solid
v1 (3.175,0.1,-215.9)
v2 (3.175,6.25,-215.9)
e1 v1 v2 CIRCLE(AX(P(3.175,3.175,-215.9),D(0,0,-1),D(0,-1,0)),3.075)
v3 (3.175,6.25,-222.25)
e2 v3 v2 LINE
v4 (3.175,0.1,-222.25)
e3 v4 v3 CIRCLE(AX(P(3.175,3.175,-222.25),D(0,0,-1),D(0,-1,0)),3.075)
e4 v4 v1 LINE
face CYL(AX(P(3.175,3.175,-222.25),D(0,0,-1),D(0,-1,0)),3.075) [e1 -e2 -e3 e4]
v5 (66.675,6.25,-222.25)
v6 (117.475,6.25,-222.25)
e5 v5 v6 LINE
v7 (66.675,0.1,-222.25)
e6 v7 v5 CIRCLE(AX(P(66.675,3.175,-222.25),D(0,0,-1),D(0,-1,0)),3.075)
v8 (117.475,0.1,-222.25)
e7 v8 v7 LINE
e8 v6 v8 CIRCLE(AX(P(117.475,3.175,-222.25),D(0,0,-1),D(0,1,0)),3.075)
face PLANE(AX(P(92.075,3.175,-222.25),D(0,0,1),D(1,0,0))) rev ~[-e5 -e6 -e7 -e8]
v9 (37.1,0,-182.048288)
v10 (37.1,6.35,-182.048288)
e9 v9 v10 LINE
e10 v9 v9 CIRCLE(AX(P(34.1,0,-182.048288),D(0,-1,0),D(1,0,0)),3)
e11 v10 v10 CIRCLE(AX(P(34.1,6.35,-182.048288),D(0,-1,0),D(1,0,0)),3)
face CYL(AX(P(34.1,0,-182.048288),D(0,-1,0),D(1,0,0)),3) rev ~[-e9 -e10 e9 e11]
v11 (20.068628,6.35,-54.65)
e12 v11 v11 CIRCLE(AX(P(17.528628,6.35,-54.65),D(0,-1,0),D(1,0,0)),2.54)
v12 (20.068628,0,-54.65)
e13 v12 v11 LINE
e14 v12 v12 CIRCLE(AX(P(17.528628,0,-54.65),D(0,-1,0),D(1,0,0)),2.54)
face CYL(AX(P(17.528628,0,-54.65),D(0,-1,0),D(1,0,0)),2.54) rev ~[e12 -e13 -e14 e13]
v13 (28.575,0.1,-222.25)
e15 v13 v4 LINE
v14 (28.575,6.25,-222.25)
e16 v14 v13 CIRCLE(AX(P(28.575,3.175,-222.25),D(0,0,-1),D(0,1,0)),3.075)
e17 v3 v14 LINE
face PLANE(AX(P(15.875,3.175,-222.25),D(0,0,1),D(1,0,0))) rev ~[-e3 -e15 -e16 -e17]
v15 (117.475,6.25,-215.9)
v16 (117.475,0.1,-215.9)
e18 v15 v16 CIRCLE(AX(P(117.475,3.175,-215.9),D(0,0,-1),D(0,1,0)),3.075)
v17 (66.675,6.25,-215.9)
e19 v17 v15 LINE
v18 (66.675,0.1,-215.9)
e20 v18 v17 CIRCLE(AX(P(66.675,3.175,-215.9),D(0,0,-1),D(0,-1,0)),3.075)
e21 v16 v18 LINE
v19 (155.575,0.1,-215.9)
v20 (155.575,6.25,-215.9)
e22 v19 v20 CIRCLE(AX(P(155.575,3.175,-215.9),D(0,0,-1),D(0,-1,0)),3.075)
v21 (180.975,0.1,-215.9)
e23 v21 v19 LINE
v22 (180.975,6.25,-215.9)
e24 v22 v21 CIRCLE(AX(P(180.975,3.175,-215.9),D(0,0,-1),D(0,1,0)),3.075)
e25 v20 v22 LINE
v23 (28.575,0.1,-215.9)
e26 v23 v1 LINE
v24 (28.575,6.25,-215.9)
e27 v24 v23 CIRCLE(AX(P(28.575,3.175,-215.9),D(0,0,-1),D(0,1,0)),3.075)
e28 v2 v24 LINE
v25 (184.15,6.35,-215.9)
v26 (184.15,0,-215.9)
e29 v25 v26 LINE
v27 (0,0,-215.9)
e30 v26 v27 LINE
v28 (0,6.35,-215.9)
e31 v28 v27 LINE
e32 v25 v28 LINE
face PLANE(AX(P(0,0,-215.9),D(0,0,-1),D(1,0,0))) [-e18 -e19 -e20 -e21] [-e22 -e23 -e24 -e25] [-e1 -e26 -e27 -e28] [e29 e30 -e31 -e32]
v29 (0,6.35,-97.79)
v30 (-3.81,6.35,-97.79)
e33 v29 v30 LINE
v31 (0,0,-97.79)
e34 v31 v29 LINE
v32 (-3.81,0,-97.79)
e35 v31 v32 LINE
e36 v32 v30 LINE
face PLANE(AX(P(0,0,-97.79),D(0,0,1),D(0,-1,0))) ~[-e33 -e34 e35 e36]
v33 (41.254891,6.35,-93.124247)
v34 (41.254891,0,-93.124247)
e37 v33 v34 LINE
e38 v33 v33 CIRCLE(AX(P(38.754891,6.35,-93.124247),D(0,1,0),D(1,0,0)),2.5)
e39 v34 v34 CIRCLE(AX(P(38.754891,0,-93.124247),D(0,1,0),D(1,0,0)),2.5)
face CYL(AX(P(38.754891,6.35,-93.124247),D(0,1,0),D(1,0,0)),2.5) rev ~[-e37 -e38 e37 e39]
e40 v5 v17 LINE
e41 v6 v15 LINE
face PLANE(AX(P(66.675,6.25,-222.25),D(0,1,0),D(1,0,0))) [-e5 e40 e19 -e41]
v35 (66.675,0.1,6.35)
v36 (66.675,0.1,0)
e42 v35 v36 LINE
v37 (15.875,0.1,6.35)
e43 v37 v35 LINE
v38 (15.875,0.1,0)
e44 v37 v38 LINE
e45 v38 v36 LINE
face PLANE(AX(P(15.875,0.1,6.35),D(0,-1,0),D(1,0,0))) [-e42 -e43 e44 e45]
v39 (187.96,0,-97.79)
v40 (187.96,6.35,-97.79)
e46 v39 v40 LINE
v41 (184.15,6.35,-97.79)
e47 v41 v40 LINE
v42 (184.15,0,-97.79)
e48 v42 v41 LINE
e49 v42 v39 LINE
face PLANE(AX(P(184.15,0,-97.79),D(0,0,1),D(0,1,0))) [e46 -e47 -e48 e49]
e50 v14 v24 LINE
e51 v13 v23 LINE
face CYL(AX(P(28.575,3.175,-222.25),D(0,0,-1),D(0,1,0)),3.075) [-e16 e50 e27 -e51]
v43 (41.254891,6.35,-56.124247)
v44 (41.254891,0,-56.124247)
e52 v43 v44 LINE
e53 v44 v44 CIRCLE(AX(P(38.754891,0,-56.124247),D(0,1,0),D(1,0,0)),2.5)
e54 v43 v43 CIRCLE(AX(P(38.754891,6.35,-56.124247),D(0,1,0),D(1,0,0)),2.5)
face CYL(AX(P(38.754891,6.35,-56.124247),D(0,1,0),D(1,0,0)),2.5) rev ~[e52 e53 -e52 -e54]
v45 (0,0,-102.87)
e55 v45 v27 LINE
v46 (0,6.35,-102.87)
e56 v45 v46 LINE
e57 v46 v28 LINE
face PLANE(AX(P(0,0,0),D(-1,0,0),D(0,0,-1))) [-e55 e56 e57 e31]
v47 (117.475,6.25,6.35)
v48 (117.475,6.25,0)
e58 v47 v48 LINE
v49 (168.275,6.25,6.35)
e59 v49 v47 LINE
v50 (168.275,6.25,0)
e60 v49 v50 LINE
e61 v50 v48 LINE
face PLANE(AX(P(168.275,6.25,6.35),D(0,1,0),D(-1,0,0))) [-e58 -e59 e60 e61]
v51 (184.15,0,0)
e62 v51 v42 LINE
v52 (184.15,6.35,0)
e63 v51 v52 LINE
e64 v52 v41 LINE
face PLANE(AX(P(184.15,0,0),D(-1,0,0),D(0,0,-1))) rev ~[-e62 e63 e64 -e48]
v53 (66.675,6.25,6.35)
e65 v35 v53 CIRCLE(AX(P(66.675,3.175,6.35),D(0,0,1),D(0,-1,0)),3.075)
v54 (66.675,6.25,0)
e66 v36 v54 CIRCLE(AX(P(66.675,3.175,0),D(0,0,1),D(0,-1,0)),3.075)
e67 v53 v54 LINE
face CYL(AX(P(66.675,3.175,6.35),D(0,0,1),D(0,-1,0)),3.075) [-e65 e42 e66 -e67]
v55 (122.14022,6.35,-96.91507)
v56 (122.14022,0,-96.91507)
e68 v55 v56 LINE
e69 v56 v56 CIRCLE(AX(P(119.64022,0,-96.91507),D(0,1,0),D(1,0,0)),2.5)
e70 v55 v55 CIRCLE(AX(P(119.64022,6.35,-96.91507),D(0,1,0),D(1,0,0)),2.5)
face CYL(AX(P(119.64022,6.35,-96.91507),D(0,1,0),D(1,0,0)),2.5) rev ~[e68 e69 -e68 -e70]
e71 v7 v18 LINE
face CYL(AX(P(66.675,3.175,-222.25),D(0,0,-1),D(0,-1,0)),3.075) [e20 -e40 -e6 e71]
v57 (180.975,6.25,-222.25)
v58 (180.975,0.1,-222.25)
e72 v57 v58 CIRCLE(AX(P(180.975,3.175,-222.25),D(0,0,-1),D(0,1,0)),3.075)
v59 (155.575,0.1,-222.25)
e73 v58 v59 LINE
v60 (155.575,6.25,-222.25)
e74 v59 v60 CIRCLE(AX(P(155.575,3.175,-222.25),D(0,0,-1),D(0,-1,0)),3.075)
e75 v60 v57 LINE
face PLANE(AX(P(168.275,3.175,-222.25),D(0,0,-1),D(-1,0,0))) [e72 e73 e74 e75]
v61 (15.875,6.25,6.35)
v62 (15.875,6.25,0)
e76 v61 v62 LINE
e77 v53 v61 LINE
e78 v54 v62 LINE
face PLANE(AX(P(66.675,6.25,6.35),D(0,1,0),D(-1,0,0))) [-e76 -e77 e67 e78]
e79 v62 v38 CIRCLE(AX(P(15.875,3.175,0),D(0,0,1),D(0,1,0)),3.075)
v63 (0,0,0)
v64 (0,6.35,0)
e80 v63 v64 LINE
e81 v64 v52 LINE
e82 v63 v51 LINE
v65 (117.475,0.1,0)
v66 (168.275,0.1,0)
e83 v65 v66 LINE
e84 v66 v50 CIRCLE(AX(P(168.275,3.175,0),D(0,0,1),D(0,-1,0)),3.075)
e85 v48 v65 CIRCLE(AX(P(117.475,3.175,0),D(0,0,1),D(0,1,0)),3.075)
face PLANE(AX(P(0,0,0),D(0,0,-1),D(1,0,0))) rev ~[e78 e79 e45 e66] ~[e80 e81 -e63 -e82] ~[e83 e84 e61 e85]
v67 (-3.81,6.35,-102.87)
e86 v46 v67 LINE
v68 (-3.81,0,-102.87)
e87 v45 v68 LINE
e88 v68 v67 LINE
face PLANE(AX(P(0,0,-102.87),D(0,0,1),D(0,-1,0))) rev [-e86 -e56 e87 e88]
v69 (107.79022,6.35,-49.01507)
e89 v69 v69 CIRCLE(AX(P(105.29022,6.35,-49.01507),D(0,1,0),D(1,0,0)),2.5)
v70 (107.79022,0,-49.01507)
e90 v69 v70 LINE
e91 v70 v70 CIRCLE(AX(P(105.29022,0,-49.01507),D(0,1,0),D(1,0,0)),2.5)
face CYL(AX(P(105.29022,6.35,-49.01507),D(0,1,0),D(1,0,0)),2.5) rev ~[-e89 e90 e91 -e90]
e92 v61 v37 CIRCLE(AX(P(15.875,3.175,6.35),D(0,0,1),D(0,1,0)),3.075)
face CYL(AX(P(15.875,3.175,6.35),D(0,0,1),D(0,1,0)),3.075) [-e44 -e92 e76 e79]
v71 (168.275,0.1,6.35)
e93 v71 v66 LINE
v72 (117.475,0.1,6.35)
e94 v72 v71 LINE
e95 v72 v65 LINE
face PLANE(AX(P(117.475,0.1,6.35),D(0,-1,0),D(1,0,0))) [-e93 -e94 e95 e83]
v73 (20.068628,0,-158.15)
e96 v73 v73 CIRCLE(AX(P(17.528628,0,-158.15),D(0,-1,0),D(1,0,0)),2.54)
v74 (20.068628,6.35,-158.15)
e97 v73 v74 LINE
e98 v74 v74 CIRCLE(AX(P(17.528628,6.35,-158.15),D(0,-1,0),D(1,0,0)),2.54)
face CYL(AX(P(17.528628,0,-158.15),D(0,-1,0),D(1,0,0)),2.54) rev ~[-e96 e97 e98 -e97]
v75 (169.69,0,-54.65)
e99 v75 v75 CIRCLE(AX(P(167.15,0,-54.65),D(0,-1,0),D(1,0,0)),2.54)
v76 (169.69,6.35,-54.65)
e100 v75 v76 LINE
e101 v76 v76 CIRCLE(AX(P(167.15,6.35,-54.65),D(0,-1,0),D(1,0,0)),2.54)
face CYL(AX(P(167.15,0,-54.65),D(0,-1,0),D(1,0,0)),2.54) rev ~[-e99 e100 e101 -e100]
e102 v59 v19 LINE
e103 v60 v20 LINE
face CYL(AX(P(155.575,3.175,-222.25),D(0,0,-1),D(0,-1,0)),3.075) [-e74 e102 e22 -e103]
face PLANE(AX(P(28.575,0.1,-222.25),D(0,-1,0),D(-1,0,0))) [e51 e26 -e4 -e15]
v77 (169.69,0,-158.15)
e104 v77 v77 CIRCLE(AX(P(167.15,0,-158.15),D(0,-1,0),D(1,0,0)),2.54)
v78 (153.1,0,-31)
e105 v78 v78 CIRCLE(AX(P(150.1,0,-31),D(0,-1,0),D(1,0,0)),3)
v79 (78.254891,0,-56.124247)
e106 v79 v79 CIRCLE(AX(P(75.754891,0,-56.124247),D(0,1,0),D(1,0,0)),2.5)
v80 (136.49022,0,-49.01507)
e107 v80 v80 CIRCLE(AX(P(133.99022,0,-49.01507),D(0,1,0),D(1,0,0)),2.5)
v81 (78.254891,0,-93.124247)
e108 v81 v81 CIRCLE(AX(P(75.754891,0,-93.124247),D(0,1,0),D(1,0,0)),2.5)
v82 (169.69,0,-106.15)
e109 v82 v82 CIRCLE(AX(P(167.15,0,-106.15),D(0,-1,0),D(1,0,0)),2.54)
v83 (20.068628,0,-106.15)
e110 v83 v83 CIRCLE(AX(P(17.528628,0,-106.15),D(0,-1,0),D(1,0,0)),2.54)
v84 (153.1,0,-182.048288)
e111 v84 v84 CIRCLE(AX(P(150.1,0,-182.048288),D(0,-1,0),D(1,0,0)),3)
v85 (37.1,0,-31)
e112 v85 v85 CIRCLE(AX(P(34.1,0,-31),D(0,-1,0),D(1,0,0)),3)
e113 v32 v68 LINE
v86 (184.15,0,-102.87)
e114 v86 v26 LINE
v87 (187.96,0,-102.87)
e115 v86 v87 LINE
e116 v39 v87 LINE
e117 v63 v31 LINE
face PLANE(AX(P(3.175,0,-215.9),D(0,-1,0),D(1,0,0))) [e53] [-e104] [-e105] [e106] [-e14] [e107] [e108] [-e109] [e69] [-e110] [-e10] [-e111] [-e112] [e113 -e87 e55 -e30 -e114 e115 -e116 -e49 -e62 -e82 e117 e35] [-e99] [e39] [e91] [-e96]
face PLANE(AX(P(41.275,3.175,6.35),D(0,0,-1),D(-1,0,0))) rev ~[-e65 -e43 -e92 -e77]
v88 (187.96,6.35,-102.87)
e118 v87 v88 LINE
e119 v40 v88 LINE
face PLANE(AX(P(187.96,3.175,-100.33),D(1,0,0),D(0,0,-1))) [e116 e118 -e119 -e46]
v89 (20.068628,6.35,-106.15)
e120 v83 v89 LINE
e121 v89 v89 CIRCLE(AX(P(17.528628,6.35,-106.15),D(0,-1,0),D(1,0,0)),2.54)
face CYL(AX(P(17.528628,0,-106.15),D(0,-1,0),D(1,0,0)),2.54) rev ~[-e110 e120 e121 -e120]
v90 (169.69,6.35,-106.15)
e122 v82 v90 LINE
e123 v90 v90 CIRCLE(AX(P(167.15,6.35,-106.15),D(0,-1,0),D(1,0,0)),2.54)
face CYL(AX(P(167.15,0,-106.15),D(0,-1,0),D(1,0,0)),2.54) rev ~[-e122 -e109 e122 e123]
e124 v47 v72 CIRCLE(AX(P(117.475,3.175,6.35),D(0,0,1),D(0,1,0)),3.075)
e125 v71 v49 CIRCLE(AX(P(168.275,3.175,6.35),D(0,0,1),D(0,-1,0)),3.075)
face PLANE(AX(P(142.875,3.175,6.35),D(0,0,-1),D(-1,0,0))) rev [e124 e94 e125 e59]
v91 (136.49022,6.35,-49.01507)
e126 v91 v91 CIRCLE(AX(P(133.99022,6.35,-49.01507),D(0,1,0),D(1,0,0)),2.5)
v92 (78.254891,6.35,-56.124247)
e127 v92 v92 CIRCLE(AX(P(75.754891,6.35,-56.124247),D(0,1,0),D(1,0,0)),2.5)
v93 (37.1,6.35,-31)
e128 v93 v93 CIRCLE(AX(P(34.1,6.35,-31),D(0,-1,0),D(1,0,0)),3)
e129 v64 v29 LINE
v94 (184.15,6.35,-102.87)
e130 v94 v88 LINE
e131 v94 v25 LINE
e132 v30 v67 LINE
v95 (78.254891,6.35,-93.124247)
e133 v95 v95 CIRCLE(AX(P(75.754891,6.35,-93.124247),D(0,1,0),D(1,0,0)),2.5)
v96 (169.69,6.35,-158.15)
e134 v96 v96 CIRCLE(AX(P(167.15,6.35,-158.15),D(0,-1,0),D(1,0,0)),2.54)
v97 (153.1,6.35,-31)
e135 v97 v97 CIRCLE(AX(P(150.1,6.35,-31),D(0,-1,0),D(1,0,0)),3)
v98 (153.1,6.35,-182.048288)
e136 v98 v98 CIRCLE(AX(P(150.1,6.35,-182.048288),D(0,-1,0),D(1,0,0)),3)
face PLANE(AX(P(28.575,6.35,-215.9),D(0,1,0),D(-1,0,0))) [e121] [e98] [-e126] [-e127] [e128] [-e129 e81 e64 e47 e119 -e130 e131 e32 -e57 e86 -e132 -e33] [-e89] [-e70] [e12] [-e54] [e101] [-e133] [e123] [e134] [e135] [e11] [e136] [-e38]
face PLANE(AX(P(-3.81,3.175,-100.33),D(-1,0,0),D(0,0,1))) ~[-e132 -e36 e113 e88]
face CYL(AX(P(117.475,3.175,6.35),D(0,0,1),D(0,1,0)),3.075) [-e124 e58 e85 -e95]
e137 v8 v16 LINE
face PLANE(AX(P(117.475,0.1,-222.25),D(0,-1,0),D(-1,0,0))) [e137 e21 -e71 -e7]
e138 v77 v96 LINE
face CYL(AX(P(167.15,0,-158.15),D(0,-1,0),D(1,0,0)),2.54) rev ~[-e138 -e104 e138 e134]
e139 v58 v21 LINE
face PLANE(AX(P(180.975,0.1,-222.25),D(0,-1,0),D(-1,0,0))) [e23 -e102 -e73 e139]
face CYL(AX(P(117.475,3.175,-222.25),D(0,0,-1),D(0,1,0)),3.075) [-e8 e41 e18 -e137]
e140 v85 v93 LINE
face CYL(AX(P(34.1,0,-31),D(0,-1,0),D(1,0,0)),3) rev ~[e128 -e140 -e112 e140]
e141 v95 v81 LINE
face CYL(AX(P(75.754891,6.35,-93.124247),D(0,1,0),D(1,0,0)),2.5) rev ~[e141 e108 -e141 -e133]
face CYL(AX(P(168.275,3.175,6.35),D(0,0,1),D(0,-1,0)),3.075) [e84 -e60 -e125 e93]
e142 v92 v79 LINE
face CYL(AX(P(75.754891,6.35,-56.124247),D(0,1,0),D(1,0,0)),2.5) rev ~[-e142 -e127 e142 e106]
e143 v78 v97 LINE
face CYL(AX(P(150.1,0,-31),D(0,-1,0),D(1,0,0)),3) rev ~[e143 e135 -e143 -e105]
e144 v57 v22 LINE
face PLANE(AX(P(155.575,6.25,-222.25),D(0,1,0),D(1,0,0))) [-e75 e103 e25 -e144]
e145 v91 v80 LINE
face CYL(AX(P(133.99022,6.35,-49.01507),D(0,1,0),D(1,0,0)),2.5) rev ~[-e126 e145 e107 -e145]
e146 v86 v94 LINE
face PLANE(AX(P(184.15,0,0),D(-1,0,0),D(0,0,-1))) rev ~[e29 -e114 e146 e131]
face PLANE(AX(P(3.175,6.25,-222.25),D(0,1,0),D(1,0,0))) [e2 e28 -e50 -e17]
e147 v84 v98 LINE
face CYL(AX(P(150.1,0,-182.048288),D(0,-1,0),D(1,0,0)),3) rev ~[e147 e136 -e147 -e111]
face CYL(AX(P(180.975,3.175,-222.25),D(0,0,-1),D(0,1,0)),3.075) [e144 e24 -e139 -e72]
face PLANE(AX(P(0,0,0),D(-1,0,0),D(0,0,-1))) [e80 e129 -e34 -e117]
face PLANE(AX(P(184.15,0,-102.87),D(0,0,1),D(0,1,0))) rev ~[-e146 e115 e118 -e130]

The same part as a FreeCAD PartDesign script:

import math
import FreeCAD as App
import Part
import Sketcher
Q = App.Units.Quantity

doc = App.newDocument("Part")
body = doc.addObject("PartDesign::Body", "Body")

# Sketch on XZ plane
sketch1 = body.newObject("Sketcher::SketchObject", "Sketch")
sketch1.AttachmentSupport = (doc.getObject("XZ_Plane"), [""])
sketch1.MapMode = "FlatFace"
sketch1.addGeometry(Part.LineSegment(App.Vector(0, -216, 0), App.Vector(0, 0, 0)), False)
sketch1.addGeometry(Part.LineSegment(App.Vector(0, 0, 0), App.Vector(184, 0, 0)), False)
sketch1.addGeometry(Part.LineSegment(App.Vector(184, 0, 0), App.Vector(184, -216, 0)), False)
sketch1.addGeometry(Part.LineSegment(App.Vector(184, -216, 0), App.Vector(0, -216, 0)), False)
sketch1.addConstraint(Sketcher.Constraint("Coincident", 0, 2, 1, 1))
sketch1.addConstraint(Sketcher.Constraint("Coincident", 1, 2, 2, 1))
sketch1.addConstraint(Sketcher.Constraint("Coincident", 2, 2, 3, 1))
sketch1.addConstraint(Sketcher.Constraint("Coincident", 3, 2, 0, 1))
sketch1.addConstraint(Sketcher.Constraint("Vertical", 0))
sketch1.addConstraint(Sketcher.Constraint("Horizontal", 1))
sketch1.addConstraint(Sketcher.Constraint("Vertical", 2))
sketch1.addConstraint(Sketcher.Constraint("Horizontal", 3))
sketch1.addConstraint(Sketcher.Constraint("Coincident", 0, 2, -1, 1))
sketch1.addConstraint(Sketcher.Constraint("DistanceY", 0, 1, 0, 2, Q("8.5 in")))
sketch1.addConstraint(Sketcher.Constraint("DistanceX", 1, 1, 1, 2, Q("7.25 in")))
pad1 = body.newObject("PartDesign::Pad", "Pad")
pad1.Profile = sketch1
pad1.Length = Q("0.25 in")
pad1.Reversed = True

# Sketch on XY plane
sketch2 = body.newObject("Sketcher::SketchObject", "Sketch001")
sketch2.AttachmentSupport = (doc.getObject("XY_Plane"), [""])
sketch2.MapMode = "FlatFace"
sketch2.addGeometry(Part.LineSegment(App.Vector(66.7, 6.3, 0), App.Vector(15.9, 6.3, 0)), False)
sketch2.addGeometry(Part.ArcOfCircle(Part.Circle(App.Vector(15.9, 3.2, 0), App.Vector(0, 0, 1), 3.2), math.radians(90), math.radians(270)), False)
sketch2.addGeometry(Part.LineSegment(App.Vector(15.9, 0, 0), App.Vector(66.7, 0, 0)), False)
sketch2.addGeometry(Part.ArcOfCircle(Part.Circle(App.Vector(66.7, 3.2, 0), App.Vector(0, 0, 1), 3.2), math.radians(-90), math.radians(90)), False)
sketch2.addConstraint(Sketcher.Constraint("Tangent", 0, 2, 1, 1))
sketch2.addConstraint(Sketcher.Constraint("Tangent", 1, 2, 2, 1))
sketch2.addConstraint(Sketcher.Constraint("Tangent", 2, 2, 3, 1))
sketch2.addConstraint(Sketcher.Constraint("Tangent", 3, 2, 0, 1))
sketch2.addConstraint(Sketcher.Constraint("Horizontal", 0))
sketch2.addConstraint(Sketcher.Constraint("Horizontal", 2))
sketch2.addConstraint(Sketcher.Constraint("PointOnObject", 1, 2, -1))
sketch2.addConstraint(Sketcher.Constraint("DistanceX", 0, 2, 0, 1, Q("2 in")))
sketch2.addConstraint(Sketcher.Constraint("Radius", 1, Q("0.125 in")))
sketch2.addConstraint(Sketcher.Constraint("DistanceX", -1, 1, 1, 3, Q("0.625 in")))
pad2 = body.newObject("PartDesign::Pad", "Pad001")
pad2.Profile = sketch2
pad2.Length = Q("0.25 in")
doc.recompute()

datumplane = body.newObject("PartDesign::Plane", "DatumPlane")
datumplane.AttachmentSupport = (doc.getObject("YZ_Plane"), [""])
datumplane.MapMode = "FlatFace"
datumplane.AttachmentOffset = App.Placement(App.Vector(0, 0, 3.625 * 25.4), App.Rotation())
mirrored = body.newObject("PartDesign::Mirrored", "Mirrored")
mirrored.Originals = [pad2]
mirrored.MirrorPlane = (datumplane, [""])
body.Tip = mirrored

# Sketch on XY plane
sketch3 = body.newObject("Sketcher::SketchObject", "Sketch002")
sketch3.AttachmentSupport = (doc.getObject("XY_Plane"), [""])
sketch3.MapMode = "FlatFace"
sketch3.AttachmentOffset = App.Placement(App.Vector(0, 0, -8.5 * 25.4), App.Rotation())
sketch3.addGeometry(Part.LineSegment(App.Vector(66.7, 6.3, 0), App.Vector(117.5, 6.3, 0)), False)
sketch3.addGeometry(Part.ArcOfCircle(Part.Circle(App.Vector(117.5, 3.2, 0), App.Vector(0, 0, 1), 3.2), math.radians(-90), math.radians(90)), False)
sketch3.addGeometry(Part.LineSegment(App.Vector(117.5, 0, 0), App.Vector(66.7, 0, 0)), False)
sketch3.addGeometry(Part.ArcOfCircle(Part.Circle(App.Vector(66.7, 3.2, 0), App.Vector(0, 0, 1), 3.2), math.radians(90), math.radians(270)), False)
sketch3.addGeometry(Part.LineSegment(App.Vector(3.2, 6.3, 0), App.Vector(28.6, 6.3, 0)), False)
sketch3.addGeometry(Part.ArcOfCircle(Part.Circle(App.Vector(28.6, 3.2, 0), App.Vector(0, 0, 1), 3.2), math.radians(-90), math.radians(90)), False)
sketch3.addGeometry(Part.LineSegment(App.Vector(28.6, 0, 0), App.Vector(3.2, 0, 0)), False)
sketch3.addGeometry(Part.ArcOfCircle(Part.Circle(App.Vector(3.2, 3.2, 0), App.Vector(0, 0, 1), 3.2), math.radians(90), math.radians(270)), False)
sketch3.addGeometry(Part.LineSegment(App.Vector(155.6, 6.3, 0), App.Vector(181, 6.3, 0)), False)
sketch3.addGeometry(Part.ArcOfCircle(Part.Circle(App.Vector(181, 3.2, 0), App.Vector(0, 0, 1), 3.2), math.radians(-90), math.radians(90)), False)
sketch3.addGeometry(Part.LineSegment(App.Vector(181, 0, 0), App.Vector(155.6, 0, 0)), False)
sketch3.addGeometry(Part.ArcOfCircle(Part.Circle(App.Vector(155.6, 3.2, 0), App.Vector(0, 0, 1), 3.2), math.radians(90), math.radians(270)), False)
sketch3.addConstraint(Sketcher.Constraint("Tangent", 0, 2, 1, 2))
sketch3.addConstraint(Sketcher.Constraint("Tangent", 1, 1, 2, 1))
sketch3.addConstraint(Sketcher.Constraint("Tangent", 2, 2, 3, 2))
sketch3.addConstraint(Sketcher.Constraint("Tangent", 3, 1, 0, 1))
sketch3.addConstraint(Sketcher.Constraint("Tangent", 4, 2, 5, 2))
sketch3.addConstraint(Sketcher.Constraint("Tangent", 5, 1, 6, 1))
sketch3.addConstraint(Sketcher.Constraint("Tangent", 6, 2, 7, 2))
sketch3.addConstraint(Sketcher.Constraint("Tangent", 7, 1, 4, 1))
sketch3.addConstraint(Sketcher.Constraint("Tangent", 8, 2, 9, 2))
sketch3.addConstraint(Sketcher.Constraint("Tangent", 9, 1, 10, 1))
sketch3.addConstraint(Sketcher.Constraint("Tangent", 10, 2, 11, 2))
sketch3.addConstraint(Sketcher.Constraint("Tangent", 11, 1, 8, 1))
sketch3.addConstraint(Sketcher.Constraint("Horizontal", 0))
sketch3.addConstraint(Sketcher.Constraint("Horizontal", 2))
sketch3.addConstraint(Sketcher.Constraint("Horizontal", 4))
sketch3.addConstraint(Sketcher.Constraint("Horizontal", 6))
sketch3.addConstraint(Sketcher.Constraint("Horizontal", 8))
sketch3.addConstraint(Sketcher.Constraint("Horizontal", 10))
sketch3.addConstraint(Sketcher.Constraint("Equal", 3, 5))
sketch3.addConstraint(Sketcher.Constraint("Equal", 7, 9))
sketch3.addConstraint(Sketcher.Constraint("PointOnObject", 1, 1, -1))
sketch3.addConstraint(Sketcher.Constraint("PointOnObject", 5, 1, -1))
sketch3.addConstraint(Sketcher.Constraint("PointOnObject", 9, 1, -1))
sketch3.addConstraint(Sketcher.Constraint("Equal", 6, 8))
sketch3.addConstraint(Sketcher.Constraint("DistanceX", 0, 1, 0, 2, Q("2 in")))
sketch3.addConstraint(Sketcher.Constraint("DistanceX", 4, 1, 4, 2, Q("1 in")))
sketch3.addConstraint(Sketcher.Constraint("Radius", 1, Q("0.125 in")))
sketch3.addConstraint(Sketcher.Constraint("DistanceX", 5, 3, 9, 3, Q("6 in")))
sketch3.addConstraint(Sketcher.Constraint("DistanceX", 5, 3, 3, 3, Q("1.5 in")))
sketch3.addConstraint(Sketcher.Constraint("DistanceX", -1, 1, 1, 3, Q("4.625 in")))
pad3 = body.newObject("PartDesign::Pad", "Pad002")
pad3.Profile = sketch3
pad3.Length = Q("0.25 in")
pad3.Reversed = True

# Sketch on YZ plane
sketch4 = body.newObject("Sketcher::SketchObject", "Sketch003")
sketch4.AttachmentSupport = (doc.getObject("YZ_Plane"), [""])
sketch4.MapMode = "FlatFace"
sketch4.AttachmentOffset = App.Placement(App.Vector(0, 0, 7.25 * 25.4), App.Rotation())
sketch4.addGeometry(Part.LineSegment(App.Vector(6, -98, 0), App.Vector(0, -98, 0)), False)
sketch4.addGeometry(Part.LineSegment(App.Vector(0, -98, 0), App.Vector(0, -103, 0)), False)
sketch4.addGeometry(Part.LineSegment(App.Vector(0, -103, 0), App.Vector(6, -103, 0)), False)
sketch4.addGeometry(Part.LineSegment(App.Vector(6, -103, 0), App.Vector(6, -98, 0)), False)
sketch4.addConstraint(Sketcher.Constraint("Coincident", 0, 2, 1, 1))
sketch4.addConstraint(Sketcher.Constraint("Coincident", 1, 2, 2, 1))
sketch4.addConstraint(Sketcher.Constraint("Coincident", 2, 2, 3, 1))
sketch4.addConstraint(Sketcher.Constraint("Coincident", 3, 2, 0, 1))
sketch4.addConstraint(Sketcher.Constraint("Horizontal", 0))
sketch4.addConstraint(Sketcher.Constraint("Vertical", 1))
sketch4.addConstraint(Sketcher.Constraint("Horizontal", 2))
sketch4.addConstraint(Sketcher.Constraint("Vertical", 3))
sketch4.addConstraint(Sketcher.Constraint("PointOnObject", 0, 2, -2))
sketch4.addConstraint(Sketcher.Constraint("DistanceY", 1, 2, 1, 1, Q("0.2 in")))
sketch4.addConstraint(Sketcher.Constraint("DistanceX", 0, 2, 0, 1, Q("0.25 in")))
sketch4.addConstraint(Sketcher.Constraint("DistanceY", 0, 2, -1, 1, Q("3.85 in")))
pad4 = body.newObject("PartDesign::Pad", "Pad003")
pad4.Profile = sketch4
pad4.Length = Q("0.15 in")
doc.recompute()

datumplane2 = body.newObject("PartDesign::Plane", "DatumPlane001")
datumplane2.AttachmentSupport = (doc.getObject("YZ_Plane"), [""])
datumplane2.MapMode = "FlatFace"
datumplane2.AttachmentOffset = App.Placement(App.Vector(0, 0, 3.625 * 25.4), App.Rotation())
mirrored2 = body.newObject("PartDesign::Mirrored", "Mirrored001")
mirrored2.Originals = [pad4]
mirrored2.MirrorPlane = (datumplane2, [""])
body.Tip = mirrored2

# Sketch on XZ plane
sketch5 = body.newObject("Sketcher::SketchObject", "Sketch004")
sketch5.AttachmentSupport = (doc.getObject("XZ_Plane"), [""])
sketch5.MapMode = "FlatFace"
sketch5.addGeometry(Part.Circle(App.Vector(17.5, -54.6, 0), App.Vector(0, 0, 1), 2.5), False)
sketch5.addGeometry(Part.Circle(App.Vector(167.2, -54.6, 0), App.Vector(0, 0, 1), 2.5), False)
sketch5.addGeometry(Part.Circle(App.Vector(167.2, -106.2, 0), App.Vector(0, 0, 1), 2.5), False)
sketch5.addGeometry(Part.Circle(App.Vector(17.5, -106.2, 0), App.Vector(0, 0, 1), 2.5), False)
sketch5.addGeometry(Part.Circle(App.Vector(17.5, -158.2, 0), App.Vector(0, 0, 1), 2.5), False)
sketch5.addGeometry(Part.Circle(App.Vector(167.2, -158.2, 0), App.Vector(0, 0, 1), 2.5), False)
sketch5.addConstraint(Sketcher.Constraint("Equal", 0, 1))
sketch5.addConstraint(Sketcher.Constraint("Equal", 1, 2))
sketch5.addConstraint(Sketcher.Constraint("Equal", 2, 3))
sketch5.addConstraint(Sketcher.Constraint("Equal", 3, 4))
sketch5.addConstraint(Sketcher.Constraint("Equal", 4, 5))
sketch5.addConstraint(Sketcher.Constraint("Horizontal", 0, 3, 1, 3))
sketch5.addConstraint(Sketcher.Constraint("Horizontal", 2, 3, 3, 3))
sketch5.addConstraint(Sketcher.Constraint("Horizontal", 4, 3, 5, 3))
sketch5.addConstraint(Sketcher.Constraint("Vertical", 1, 3, 2, 3))
sketch5.addConstraint(Sketcher.Constraint("Vertical", 0, 3, 3, 3))
sketch5.addConstraint(Sketcher.Constraint("Vertical", 3, 3, 4, 3))
sketch5.addConstraint(Sketcher.Constraint("Vertical", 2, 3, 5, 3))
sketch5.addConstraint(Sketcher.Constraint("Diameter", 0, Q("0.2 in")))
sketch5.addConstraint(Sketcher.Constraint("DistanceY", 0, 3, -1, 1, Q("54.65 mm")))
sketch5.addConstraint(Sketcher.Constraint("DistanceX", -1, 1, 1, 3, Q("167.15 mm")))
sketch5.addConstraint(Sketcher.Constraint("DistanceY", 2, 3, -1, 1, Q("106.15 mm")))
sketch5.addConstraint(Sketcher.Constraint("DistanceY", 4, 3, -1, 1, Q("158.15 mm")))
sketch5.addConstraint(Sketcher.Constraint("DistanceX", -1, 1, 0, 3, Q("17.528628 mm")))
pocket1 = body.newObject("PartDesign::Pocket", "Pocket")
pocket1.Profile = sketch5
pocket1.Type = "ThroughAll"

# Sketch on XZ plane
sketch6 = body.newObject("Sketcher::SketchObject", "Sketch005")
sketch6.AttachmentSupport = (doc.getObject("XZ_Plane"), [""])
sketch6.MapMode = "FlatFace"
sketch6.AttachmentOffset = App.Placement(App.Vector(0, 0, -0.25 * 25.4), App.Rotation())
sketch6.addGeometry(Part.Circle(App.Vector(105.3, -49, 0), App.Vector(0, 0, 1), 2.5), False)
sketch6.addGeometry(Part.Circle(App.Vector(134, -49, 0), App.Vector(0, 0, 1), 2.5), False)
sketch6.addGeometry(Part.Circle(App.Vector(119.6, -96.9, 0), App.Vector(0, 0, 1), 2.5), False)
sketch6.addConstraint(Sketcher.Constraint("Equal", 0, 1))
sketch6.addConstraint(Sketcher.Constraint("Equal", 1, 2))
sketch6.addConstraint(Sketcher.Constraint("Horizontal", 0, 3, 1, 3))
sketch6.addConstraint(Sketcher.Constraint("Diameter", 0, Q("5 mm")))
sketch6.addConstraint(Sketcher.Constraint("DistanceX", 0, 3, 1, 3, Q("28.7 mm")))
sketch6.addConstraint(Sketcher.Constraint("DistanceX", 0, 3, 2, 3, Q("14.35 mm")))
sketch6.addConstraint(Sketcher.Constraint("DistanceY", 2, 3, 0, 3, Q("47.9 mm")))
sketch6.addConstraint(Sketcher.Constraint("DistanceX", -1, 1, 0, 3, Q("105.29022 mm")))
sketch6.addConstraint(Sketcher.Constraint("DistanceY", 0, 3, -1, 1, Q("49.01507 mm")))
pocket2 = body.newObject("PartDesign::Pocket", "Pocket001")
pocket2.Profile = sketch6
pocket2.Length = 10
pocket2.Reversed = True

# Sketch on XZ plane
sketch7 = body.newObject("Sketcher::SketchObject", "Sketch006")
sketch7.AttachmentSupport = (doc.getObject("XZ_Plane"), [""])
sketch7.MapMode = "FlatFace"
sketch7.AttachmentOffset = App.Placement(App.Vector(0, 0, -0.25 * 25.4), App.Rotation())
sketch7.addGeometry(Part.Circle(App.Vector(75.8, -56.1, 0), App.Vector(0, 0, 1), 2.5), False)
sketch7.addGeometry(Part.Circle(App.Vector(38.8, -56.1, 0), App.Vector(0, 0, 1), 2.5), False)
sketch7.addGeometry(Part.Circle(App.Vector(75.8, -93.1, 0), App.Vector(0, 0, 1), 2.5), False)
sketch7.addGeometry(Part.Circle(App.Vector(38.8, -93.1, 0), App.Vector(0, 0, 1), 2.5), False)
sketch7.addConstraint(Sketcher.Constraint("Equal", 0, 1))
sketch7.addConstraint(Sketcher.Constraint("Equal", 1, 2))
sketch7.addConstraint(Sketcher.Constraint("Equal", 2, 3))
sketch7.addConstraint(Sketcher.Constraint("Horizontal", 0, 3, 1, 3))
sketch7.addConstraint(Sketcher.Constraint("Horizontal", 2, 3, 3, 3))
sketch7.addConstraint(Sketcher.Constraint("Vertical", 0, 3, 2, 3))
sketch7.addConstraint(Sketcher.Constraint("Vertical", 1, 3, 3, 3))
sketch7.addConstraint(Sketcher.Constraint("Diameter", 0, Q("5 mm")))
sketch7.addConstraint(Sketcher.Constraint("DistanceX", 1, 3, 0, 3, Q("37 mm")))
sketch7.addConstraint(Sketcher.Constraint("DistanceY", 2, 3, 0, 3, Q("37 mm")))
sketch7.addConstraint(Sketcher.Constraint("DistanceX", -1, 1, 0, 3, Q("75.754891 mm")))
sketch7.addConstraint(Sketcher.Constraint("DistanceY", 0, 3, -1, 1, Q("56.124247 mm")))
pocket3 = body.newObject("PartDesign::Pocket", "Pocket002")
pocket3.Profile = sketch7
pocket3.Length = 10
pocket3.Reversed = True

# Sketch on XZ plane
sketch8 = body.newObject("Sketcher::SketchObject", "Sketch007")
sketch8.AttachmentSupport = (doc.getObject("XZ_Plane"), [""])
sketch8.MapMode = "FlatFace"
sketch8.addGeometry(Part.Circle(App.Vector(150.1, -182, 0), App.Vector(0, 0, 1), 3), False)
sketch8.addGeometry(Part.Circle(App.Vector(34.1, -182, 0), App.Vector(0, 0, 1), 3), False)
sketch8.addGeometry(Part.Circle(App.Vector(150.1, -31, 0), App.Vector(0, 0, 1), 3), False)
sketch8.addGeometry(Part.Circle(App.Vector(34.1, -31, 0), App.Vector(0, 0, 1), 3), False)
sketch8.addConstraint(Sketcher.Constraint("Equal", 0, 1))
sketch8.addConstraint(Sketcher.Constraint("Equal", 1, 2))
sketch8.addConstraint(Sketcher.Constraint("Equal", 2, 3))
sketch8.addConstraint(Sketcher.Constraint("Horizontal", 0, 3, 1, 3))
sketch8.addConstraint(Sketcher.Constraint("Horizontal", 2, 3, 3, 3))
sketch8.addConstraint(Sketcher.Constraint("Vertical", 0, 3, 2, 3))
sketch8.addConstraint(Sketcher.Constraint("Vertical", 1, 3, 3, 3))
sketch8.addConstraint(Sketcher.Constraint("Diameter", 0, Q("6 mm")))
sketch8.addConstraint(Sketcher.Constraint("DistanceX", -1, 1, 0, 3, Q("150.1 mm")))
sketch8.addConstraint(Sketcher.Constraint("DistanceX", -1, 1, 1, 3, Q("34.1 mm")))
sketch8.addConstraint(Sketcher.Constraint("DistanceY", 2, 3, -1, 1, Q("31 mm")))
sketch8.addConstraint(Sketcher.Constraint("DistanceY", 0, 3, -1, 1, Q("182.048288 mm")))
pocket4 = body.newObject("PartDesign::Pocket", "Pocket003")
pocket4.Profile = sketch8
pocket4.Type = "ThroughAll"

# Sketch on XY plane
sketch9 = body.newObject("Sketcher::SketchObject", "Sketch008")
sketch9.AttachmentSupport = (doc.getObject("XY_Plane"), [""])
sketch9.MapMode = "FlatFace"
sketch9.AttachmentOffset = App.Placement(App.Vector(0, 0, -8.75 * 25.4), App.Rotation())
sketch9.addGeometry(Part.LineSegment(App.Vector(155.6, 6.3, 0), App.Vector(181, 6.3, 0)), False)
sketch9.addGeometry(Part.ArcOfCircle(Part.Circle(App.Vector(181, 3.2, 0), App.Vector(0, 0, 1), 3.2), math.radians(-90), math.radians(90)), False)
sketch9.addGeometry(Part.LineSegment(App.Vector(181, 0, 0), App.Vector(155.6, 0, 0)), False)
sketch9.addGeometry(Part.ArcOfCircle(Part.Circle(App.Vector(155.6, 3.2, 0), App.Vector(0, 0, 1), 3.2), math.radians(90), math.radians(270)), False)
sketch9.addGeometry(Part.LineSegment(App.Vector(181, 6.2, 0), App.Vector(155.6, 6.2, 0)), False)
sketch9.addGeometry(Part.ArcOfCircle(Part.Circle(App.Vector(155.6, 3.2, 0), App.Vector(0, 0, 1), 3.1), math.radians(90), math.radians(270)), False)
sketch9.addGeometry(Part.LineSegment(App.Vector(155.6, 0.1, 0), App.Vector(181, 0.1, 0)), False)
sketch9.addGeometry(Part.ArcOfCircle(Part.Circle(App.Vector(181, 3.2, 0), App.Vector(0, 0, 1), 3.1), math.radians(-90), math.radians(90)), False)
sketch9.addConstraint(Sketcher.Constraint("Tangent", 0, 2, 1, 2))
sketch9.addConstraint(Sketcher.Constraint("Tangent", 1, 1, 2, 1))
sketch9.addConstraint(Sketcher.Constraint("Tangent", 2, 2, 3, 2))
sketch9.addConstraint(Sketcher.Constraint("Tangent", 3, 1, 0, 1))
sketch9.addConstraint(Sketcher.Constraint("Tangent", 4, 2, 5, 1))
sketch9.addConstraint(Sketcher.Constraint("Tangent", 5, 2, 6, 1))
sketch9.addConstraint(Sketcher.Constraint("Tangent", 6, 2, 7, 1))
sketch9.addConstraint(Sketcher.Constraint("Tangent", 7, 2, 4, 1))
sketch9.addConstraint(Sketcher.Constraint("Horizontal", 0))
sketch9.addConstraint(Sketcher.Constraint("Horizontal", 2))
sketch9.addConstraint(Sketcher.Constraint("Horizontal", 4))
sketch9.addConstraint(Sketcher.Constraint("Horizontal", 6))
sketch9.addConstraint(Sketcher.Constraint("Coincident", 5, 3, 3, 3))
sketch9.addConstraint(Sketcher.Constraint("PointOnObject", 1, 1, -1))
sketch9.addConstraint(Sketcher.Constraint("Vertical", 7, 3, 0, 2))
sketch9.addConstraint(Sketcher.Constraint("DistanceX", 0, 1, 0, 2, Q("1 in")))
sketch9.addConstraint(Sketcher.Constraint("Radius", 1, Q("0.125 in")))
sketch9.addConstraint(Sketcher.Constraint("Radius", 5, Q("3.075 mm")))
sketch9.addConstraint(Sketcher.Constraint("DistanceX", -1, 1, 1, 3, Q("7.125 in")))
pocket5 = body.newObject("PartDesign::Pocket", "Pocket004")
pocket5.Profile = sketch9
pocket5.Length = Q("0.25 in")
pocket5.Reversed = True

# Sketch on XY plane
sketch10 = body.newObject("Sketcher::SketchObject", "Sketch009")
sketch10.AttachmentSupport = (doc.getObject("XY_Plane"), [""])
sketch10.MapMode = "FlatFace"
sketch10.AttachmentOffset = App.Placement(App.Vector(0, 0, -8.75 * 25.4), App.Rotation())
sketch10.addGeometry(Part.LineSegment(App.Vector(66.7, 6.3, 0), App.Vector(117.5, 6.3, 0)), False)
sketch10.addGeometry(Part.ArcOfCircle(Part.Circle(App.Vector(117.5, 3.2, 0), App.Vector(0, 0, 1), 3.2), math.radians(-90), math.radians(90)), False)
sketch10.addGeometry(Part.LineSegment(App.Vector(117.5, 0, 0), App.Vector(66.7, 0, 0)), False)
sketch10.addGeometry(Part.ArcOfCircle(Part.Circle(App.Vector(66.7, 3.2, 0), App.Vector(0, 0, 1), 3.2), math.radians(90), math.radians(270)), False)
sketch10.addGeometry(Part.LineSegment(App.Vector(117.5, 6.2, 0), App.Vector(66.7, 6.2, 0)), False)
sketch10.addGeometry(Part.ArcOfCircle(Part.Circle(App.Vector(66.7, 3.2, 0), App.Vector(0, 0, 1), 3.1), math.radians(90), math.radians(270)), False)
sketch10.addGeometry(Part.LineSegment(App.Vector(66.7, 0.1, 0), App.Vector(117.5, 0.1, 0)), False)
sketch10.addGeometry(Part.ArcOfCircle(Part.Circle(App.Vector(117.5, 3.2, 0), App.Vector(0, 0, 1), 3.1), math.radians(-90), math.radians(90)), False)
sketch10.addConstraint(Sketcher.Constraint("Tangent", 0, 2, 1, 2))
sketch10.addConstraint(Sketcher.Constraint("Tangent", 1, 1, 2, 1))
sketch10.addConstraint(Sketcher.Constraint("Tangent", 2, 2, 3, 2))
sketch10.addConstraint(Sketcher.Constraint("Tangent", 3, 1, 0, 1))
sketch10.addConstraint(Sketcher.Constraint("Tangent", 4, 2, 5, 1))
sketch10.addConstraint(Sketcher.Constraint("Tangent", 5, 2, 6, 1))
sketch10.addConstraint(Sketcher.Constraint("Tangent", 6, 2, 7, 1))
sketch10.addConstraint(Sketcher.Constraint("Tangent", 7, 2, 4, 1))
sketch10.addConstraint(Sketcher.Constraint("Horizontal", 0))
sketch10.addConstraint(Sketcher.Constraint("Horizontal", 2))
sketch10.addConstraint(Sketcher.Constraint("Horizontal", 4))
sketch10.addConstraint(Sketcher.Constraint("Horizontal", 6))
sketch10.addConstraint(Sketcher.Constraint("Coincident", 5, 3, 3, 3))
sketch10.addConstraint(Sketcher.Constraint("PointOnObject", 1, 1, -1))
sketch10.addConstraint(Sketcher.Constraint("Vertical", 7, 3, 0, 2))
sketch10.addConstraint(Sketcher.Constraint("DistanceX", 0, 1, 0, 2, Q("2 in")))
sketch10.addConstraint(Sketcher.Constraint("Radius", 1, Q("0.125 in")))
sketch10.addConstraint(Sketcher.Constraint("Radius", 5, Q("3.075 mm")))
sketch10.addConstraint(Sketcher.Constraint("DistanceX", -1, 1, 1, 3, Q("4.625 in")))
pocket6 = body.newObject("PartDesign::Pocket", "Pocket005")
pocket6.Profile = sketch10
pocket6.Length = Q("0.25 in")
pocket6.Reversed = True

# Sketch on XY plane
sketch11 = body.newObject("Sketcher::SketchObject", "Sketch010")
sketch11.AttachmentSupport = (doc.getObject("XY_Plane"), [""])
sketch11.MapMode = "FlatFace"
sketch11.AttachmentOffset = App.Placement(App.Vector(0, 0, -8.75 * 25.4), App.Rotation())
sketch11.addGeometry(Part.LineSegment(App.Vector(28.6, 0, 0), App.Vector(3.2, 0, 0)), False)
sketch11.addGeometry(Part.ArcOfCircle(Part.Circle(App.Vector(3.2, 3.2, 0), App.Vector(0, 0, 1), 3.2), math.radians(90), math.radians(270)), False)
sketch11.addGeometry(Part.LineSegment(App.Vector(3.2, 6.3, 0), App.Vector(28.6, 6.3, 0)), False)
sketch11.addGeometry(Part.ArcOfCircle(Part.Circle(App.Vector(28.6, 3.2, 0), App.Vector(0, 0, 1), 3.2), math.radians(-90), math.radians(90)), False)
sketch11.addGeometry(Part.LineSegment(App.Vector(3.2, 0.1, 0), App.Vector(28.6, 0.1, 0)), False)
sketch11.addGeometry(Part.ArcOfCircle(Part.Circle(App.Vector(28.6, 3.2, 0), App.Vector(0, 0, 1), 3.1), math.radians(-90), math.radians(90)), False)
sketch11.addGeometry(Part.LineSegment(App.Vector(28.6, 6.2, 0), App.Vector(3.2, 6.2, 0)), False)
sketch11.addGeometry(Part.ArcOfCircle(Part.Circle(App.Vector(3.2, 3.2, 0), App.Vector(0, 0, 1), 3.1), math.radians(90), math.radians(270)), False)
sketch11.addConstraint(Sketcher.Constraint("Tangent", 0, 2, 1, 2))
sketch11.addConstraint(Sketcher.Constraint("Tangent", 1, 1, 2, 1))
sketch11.addConstraint(Sketcher.Constraint("Tangent", 2, 2, 3, 2))
sketch11.addConstraint(Sketcher.Constraint("Tangent", 3, 1, 0, 1))
sketch11.addConstraint(Sketcher.Constraint("Tangent", 4, 2, 5, 1))
sketch11.addConstraint(Sketcher.Constraint("Tangent", 5, 2, 6, 1))
sketch11.addConstraint(Sketcher.Constraint("Tangent", 6, 2, 7, 1))
sketch11.addConstraint(Sketcher.Constraint("Tangent", 7, 2, 4, 1))
sketch11.addConstraint(Sketcher.Constraint("Horizontal", 0))
sketch11.addConstraint(Sketcher.Constraint("Horizontal", 2))
sketch11.addConstraint(Sketcher.Constraint("Horizontal", 4))
sketch11.addConstraint(Sketcher.Constraint("Horizontal", 6))
sketch11.addConstraint(Sketcher.Constraint("Coincident", 5, 3, 3, 3))
sketch11.addConstraint(Sketcher.Constraint("PointOnObject", 0, 2, -1))
sketch11.addConstraint(Sketcher.Constraint("Vertical", 7, 3, 0, 2))
sketch11.addConstraint(Sketcher.Constraint("DistanceX", 0, 2, 0, 1, Q("1 in")))
sketch11.addConstraint(Sketcher.Constraint("Radius", 1, Q("0.125 in")))
sketch11.addConstraint(Sketcher.Constraint("Radius", 5, Q("3.075 mm")))
sketch11.addConstraint(Sketcher.Constraint("DistanceX", -1, 1, 1, 3, Q("0.125 in")))
pocket7 = body.newObject("PartDesign::Pocket", "Pocket006")
pocket7.Profile = sketch11
pocket7.Length = Q("0.25 in")
pocket7.Reversed = True

# Sketch on XY plane
sketch12 = body.newObject("Sketcher::SketchObject", "Sketch011")
sketch12.AttachmentSupport = (doc.getObject("XY_Plane"), [""])
sketch12.MapMode = "FlatFace"
sketch12.AttachmentOffset = App.Placement(App.Vector(0, 0, 0.25 * 25.4), App.Rotation())
sketch12.addGeometry(Part.LineSegment(App.Vector(15.9, 0, 0), App.Vector(66.7, 0, 0)), False)
sketch12.addGeometry(Part.ArcOfCircle(Part.Circle(App.Vector(66.7, 3.2, 0), App.Vector(0, 0, 1), 3.2), math.radians(-90), math.radians(90)), False)
sketch12.addGeometry(Part.LineSegment(App.Vector(66.7, 6.3, 0), App.Vector(15.9, 6.3, 0)), False)
sketch12.addGeometry(Part.ArcOfCircle(Part.Circle(App.Vector(15.9, 3.2, 0), App.Vector(0, 0, 1), 3.2), math.radians(90), math.radians(270)), False)
sketch12.addGeometry(Part.LineSegment(App.Vector(66.7, 0.1, 0), App.Vector(15.9, 0.1, 0)), False)
sketch12.addGeometry(Part.ArcOfCircle(Part.Circle(App.Vector(15.9, 3.2, 0), App.Vector(0, 0, 1), 3.1), math.radians(90), math.radians(270)), False)
sketch12.addGeometry(Part.LineSegment(App.Vector(15.9, 6.2, 0), App.Vector(66.7, 6.2, 0)), False)
sketch12.addGeometry(Part.ArcOfCircle(Part.Circle(App.Vector(66.7, 3.2, 0), App.Vector(0, 0, 1), 3.1), math.radians(-90), math.radians(90)), False)
sketch12.addConstraint(Sketcher.Constraint("Tangent", 0, 2, 1, 1))
sketch12.addConstraint(Sketcher.Constraint("Tangent", 1, 2, 2, 1))
sketch12.addConstraint(Sketcher.Constraint("Tangent", 2, 2, 3, 1))
sketch12.addConstraint(Sketcher.Constraint("Tangent", 3, 2, 0, 1))
sketch12.addConstraint(Sketcher.Constraint("Tangent", 4, 2, 5, 2))
sketch12.addConstraint(Sketcher.Constraint("Tangent", 5, 1, 6, 1))
sketch12.addConstraint(Sketcher.Constraint("Tangent", 6, 2, 7, 2))
sketch12.addConstraint(Sketcher.Constraint("Tangent", 7, 1, 4, 1))
sketch12.addConstraint(Sketcher.Constraint("Horizontal", 0))
sketch12.addConstraint(Sketcher.Constraint("Horizontal", 2))
sketch12.addConstraint(Sketcher.Constraint("Horizontal", 4))
sketch12.addConstraint(Sketcher.Constraint("Horizontal", 6))
sketch12.addConstraint(Sketcher.Constraint("Coincident", 5, 3, 3, 3))
sketch12.addConstraint(Sketcher.Constraint("PointOnObject", 0, 2, -1))
sketch12.addConstraint(Sketcher.Constraint("Vertical", 7, 3, 0, 2))
sketch12.addConstraint(Sketcher.Constraint("DistanceX", 0, 1, 0, 2, Q("2 in")))
sketch12.addConstraint(Sketcher.Constraint("Radius", 1, Q("0.125 in")))
sketch12.addConstraint(Sketcher.Constraint("Radius", 5, Q("3.075 mm")))
sketch12.addConstraint(Sketcher.Constraint("DistanceX", -1, 1, 1, 3, Q("2.625 in")))
pocket8 = body.newObject("PartDesign::Pocket", "Pocket007")
pocket8.Profile = sketch12
pocket8.Length = Q("0.25 in")

# Sketch on XY plane
sketch13 = body.newObject("Sketcher::SketchObject", "Sketch012")
sketch13.AttachmentSupport = (doc.getObject("XY_Plane"), [""])
sketch13.MapMode = "FlatFace"
sketch13.AttachmentOffset = App.Placement(App.Vector(0, 0, 0.25 * 25.4), App.Rotation())
sketch13.addGeometry(Part.LineSegment(App.Vector(168.3, 6.3, 0), App.Vector(117.5, 6.3, 0)), False)
sketch13.addGeometry(Part.ArcOfCircle(Part.Circle(App.Vector(117.5, 3.2, 0), App.Vector(0, 0, 1), 3.2), math.radians(90), math.radians(270)), False)
sketch13.addGeometry(Part.LineSegment(App.Vector(117.5, 0, 0), App.Vector(168.3, 0, 0)), False)
sketch13.addGeometry(Part.ArcOfCircle(Part.Circle(App.Vector(168.3, 3.2, 0), App.Vector(0, 0, 1), 3.2), math.radians(-90), math.radians(90)), False)
sketch13.addGeometry(Part.LineSegment(App.Vector(117.5, 6.2, 0), App.Vector(168.3, 6.2, 0)), False)
sketch13.addGeometry(Part.ArcOfCircle(Part.Circle(App.Vector(168.3, 3.2, 0), App.Vector(0, 0, 1), 3.1), math.radians(-90), math.radians(90)), False)
sketch13.addGeometry(Part.LineSegment(App.Vector(168.3, 0.1, 0), App.Vector(117.5, 0.1, 0)), False)
sketch13.addGeometry(Part.ArcOfCircle(Part.Circle(App.Vector(117.5, 3.2, 0), App.Vector(0, 0, 1), 3.1), math.radians(90), math.radians(270)), False)
sketch13.addConstraint(Sketcher.Constraint("Tangent", 0, 2, 1, 1))
sketch13.addConstraint(Sketcher.Constraint("Tangent", 1, 2, 2, 1))
sketch13.addConstraint(Sketcher.Constraint("Tangent", 2, 2, 3, 1))
sketch13.addConstraint(Sketcher.Constraint("Tangent", 3, 2, 0, 1))
sketch13.addConstraint(Sketcher.Constraint("Tangent", 4, 2, 5, 2))
sketch13.addConstraint(Sketcher.Constraint("Tangent", 5, 1, 6, 1))
sketch13.addConstraint(Sketcher.Constraint("Tangent", 6, 2, 7, 2))
sketch13.addConstraint(Sketcher.Constraint("Tangent", 7, 1, 4, 1))
sketch13.addConstraint(Sketcher.Constraint("Horizontal", 0))
sketch13.addConstraint(Sketcher.Constraint("Horizontal", 2))
sketch13.addConstraint(Sketcher.Constraint("Horizontal", 4))
sketch13.addConstraint(Sketcher.Constraint("Horizontal", 6))
sketch13.addConstraint(Sketcher.Constraint("Coincident", 5, 3, 3, 3))
sketch13.addConstraint(Sketcher.Constraint("PointOnObject", 1, 2, -1))
sketch13.addConstraint(Sketcher.Constraint("Vertical", 7, 3, 0, 2))
sketch13.addConstraint(Sketcher.Constraint("DistanceX", 0, 2, 0, 1, Q("2 in")))
sketch13.addConstraint(Sketcher.Constraint("Radius", 1, Q("0.125 in")))
sketch13.addConstraint(Sketcher.Constraint("Radius", 5, Q("3.075 mm")))
sketch13.addConstraint(Sketcher.Constraint("DistanceX", -1, 1, 1, 3, Q("4.625 in")))
pocket9 = body.newObject("PartDesign::Pocket", "Pocket008")
pocket9.Profile = sketch13
pocket9.Length = Q("0.25 in")

doc.recompute()
